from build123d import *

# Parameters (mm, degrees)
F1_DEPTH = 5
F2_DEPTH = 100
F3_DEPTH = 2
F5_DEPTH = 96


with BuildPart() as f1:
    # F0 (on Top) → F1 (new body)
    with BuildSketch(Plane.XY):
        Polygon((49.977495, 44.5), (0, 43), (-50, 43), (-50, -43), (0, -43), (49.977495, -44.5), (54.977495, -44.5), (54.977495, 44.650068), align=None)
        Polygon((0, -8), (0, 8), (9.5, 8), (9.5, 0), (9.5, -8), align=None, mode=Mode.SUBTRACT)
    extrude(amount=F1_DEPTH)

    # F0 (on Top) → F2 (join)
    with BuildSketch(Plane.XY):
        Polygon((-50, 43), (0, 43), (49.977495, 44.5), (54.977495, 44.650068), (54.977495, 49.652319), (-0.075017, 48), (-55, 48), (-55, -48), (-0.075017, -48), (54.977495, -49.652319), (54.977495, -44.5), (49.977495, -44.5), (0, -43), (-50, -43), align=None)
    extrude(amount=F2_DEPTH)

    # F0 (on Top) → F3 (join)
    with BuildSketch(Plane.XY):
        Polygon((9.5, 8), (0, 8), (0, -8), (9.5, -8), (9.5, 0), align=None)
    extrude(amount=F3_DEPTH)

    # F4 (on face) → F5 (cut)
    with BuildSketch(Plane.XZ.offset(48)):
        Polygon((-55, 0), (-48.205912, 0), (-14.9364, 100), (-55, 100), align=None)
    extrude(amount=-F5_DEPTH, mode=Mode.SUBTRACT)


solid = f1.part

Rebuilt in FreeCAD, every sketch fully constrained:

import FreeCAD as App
import Part
import Sketcher
Q = App.Units.Quantity

doc = App.newDocument("Part")
body = doc.addObject("PartDesign::Body", "Body")

# Sketch on XY plane
sketch1 = doc.addObject("Sketcher::SketchObject", "Sketch")
body.addObject(sketch1)
sketch1.AttachmentSupport = (doc.XY_Plane, [""])
sketch1.MapMode = "FlatFace"
sketch1.addGeometry(Part.LineSegment(App.Vector(50, 44, 0), App.Vector(0, 43, 0)), False)
sketch1.addGeometry(Part.LineSegment(App.Vector(0, 43, 0), App.Vector(-50, 43, 0)), False)
sketch1.addGeometry(Part.LineSegment(App.Vector(-50, 43, 0), App.Vector(-50, -43, 0)), False)
sketch1.addGeometry(Part.LineSegment(App.Vector(-50, -43, 0), App.Vector(0, -43, 0)), False)
sketch1.addGeometry(Part.LineSegment(App.Vector(0, -43, 0), App.Vector(50, -44, 0)), False)
sketch1.addGeometry(Part.LineSegment(App.Vector(50, -44, 0), App.Vector(55, -44, 0)), False)
sketch1.addGeometry(Part.LineSegment(App.Vector(55, -44, 0), App.Vector(55, 45, 0)), False)
sketch1.addGeometry(Part.LineSegment(App.Vector(55, 45, 0), App.Vector(50, 44, 0)), False)
sketch1.addGeometry(Part.LineSegment(App.Vector(10, -8, 0), App.Vector(0, -8, 0)), False)
sketch1.addGeometry(Part.LineSegment(App.Vector(0, -8, 0), App.Vector(0, 8, 0)), False)
sketch1.addGeometry(Part.LineSegment(App.Vector(0, 8, 0), App.Vector(10, 8, 0)), False)
sketch1.addGeometry(Part.LineSegment(App.Vector(10, 8, 0), App.Vector(10, -8, 0)), False)
sketch1.addConstraint(Sketcher.Constraint("Coincident", 0, 2, 1, 1))
sketch1.addConstraint(Sketcher.Constraint("Coincident", 1, 2, 2, 1))
sketch1.addConstraint(Sketcher.Constraint("Coincident", 2, 2, 3, 1))
sketch1.addConstraint(Sketcher.Constraint("Coincident", 3, 2, 4, 1))
sketch1.addConstraint(Sketcher.Constraint("Coincident", 4, 2, 5, 1))
sketch1.addConstraint(Sketcher.Constraint("Coincident", 5, 2, 6, 1))
sketch1.addConstraint(Sketcher.Constraint("Coincident", 6, 2, 7, 1))
sketch1.addConstraint(Sketcher.Constraint("Coincident", 7, 2, 0, 1))
sketch1.addConstraint(Sketcher.Constraint("Coincident", 8, 2, 9, 1))
sketch1.addConstraint(Sketcher.Constraint("Coincident", 9, 2, 10, 1))
sketch1.addConstraint(Sketcher.Constraint("Coincident", 10, 2, 11, 1))
sketch1.addConstraint(Sketcher.Constraint("Coincident", 11, 2, 8, 1))
sketch1.addConstraint(Sketcher.Constraint("Horizontal", 1))
sketch1.addConstraint(Sketcher.Constraint("Vertical", 2))
sketch1.addConstraint(Sketcher.Constraint("Horizontal", 3))
sketch1.addConstraint(Sketcher.Constraint("Horizontal", 5))
sketch1.addConstraint(Sketcher.Constraint("Vertical", 6))
sketch1.addConstraint(Sketcher.Constraint("Horizontal", 8))
sketch1.addConstraint(Sketcher.Constraint("Vertical", 9))
sketch1.addConstraint(Sketcher.Constraint("Horizontal", 10))
sketch1.addConstraint(Sketcher.Constraint("Vertical", 11))
sketch1.addConstraint(Sketcher.Constraint("Symmetric", 0, 2, 3, 2, -1, 1))
sketch1.addConstraint(Sketcher.Constraint("Symmetric", 8, 2, 9, 2, -1, 1))
sketch1.addConstraint(Sketcher.Constraint("Symmetric", 4, 2, 7, 2, -1))
sketch1.addConstraint(Sketcher.Constraint("PointOnObject", 0, 2, -2))
sketch1.addConstraint(Sketcher.Constraint("Parallel", 0, 7))
sketch1.addConstraint(Sketcher.Constraint("DistanceX", 1, 2, 1, 1, Q("50 mm")))
sketch1.addConstraint(Sketcher.Constraint("DistanceX", 5, 1, 5, 2, Q("5 mm")))
sketch1.addConstraint(Sketcher.Constraint("DistanceY", 2, 2, 2, 1, Q("86 mm")))
sketch1.addConstraint(Sketcher.Constraint("DistanceY", 9, 1, 9, 2, Q("16 mm")))
sketch1.addConstraint(Sketcher.Constraint("Distance", 0, Q("50 mm")))
sketch1.addConstraint(Sketcher.Constraint("DistanceX", 8, 2, 8, 1, Q("9.5 mm")))
sketch1.addConstraint(Sketcher.Constraint("DistanceY", 4, 2, 7, 2, Q("89 mm")))
pad1 = doc.addObject("PartDesign::Pad", "Pad")
body.addObject(pad1)
pad1.Profile = sketch1
pad1.Length = 5

# Sketch on XY plane
sketch2 = doc.addObject("Sketcher::SketchObject", "Sketch001")
body.addObject(sketch2)
sketch2.AttachmentSupport = (doc.XY_Plane, [""])
sketch2.MapMode = "FlatFace"
sketch2.addGeometry(Part.LineSegment(App.Vector(-50, 43, 0), App.Vector(0, 43, 0)), False)
sketch2.addGeometry(Part.LineSegment(App.Vector(0, 43, 0), App.Vector(50, 44, 0)), False)
sketch2.addGeometry(Part.LineSegment(App.Vector(50, 44, 0), App.Vector(55, 45, 0)), False)
sketch2.addGeometry(Part.LineSegment(App.Vector(55, 45, 0), App.Vector(55, 50, 0)), False)
sketch2.addGeometry(Part.LineSegment(App.Vector(55, 50, 0), App.Vector(0, 48, 0)), False)
sketch2.addGeometry(Part.LineSegment(App.Vector(0, 48, 0), App.Vector(-55, 48, 0)), False)
sketch2.addGeometry(Part.LineSegment(App.Vector(-55, 48, 0), App.Vector(-55, -48, 0)), False)
sketch2.addGeometry(Part.LineSegment(App.Vector(-55, -48, 0), App.Vector(0, -48, 0)), False)
sketch2.addGeometry(Part.LineSegment(App.Vector(0, -48, 0), App.Vector(55, -50, 0)), False)
sketch2.addGeometry(Part.LineSegment(App.Vector(55, -50, 0), App.Vector(55, -44, 0)), False)
sketch2.addGeometry(Part.LineSegment(App.Vector(55, -44, 0), App.Vector(50, -44, 0)), False)
sketch2.addGeometry(Part.LineSegment(App.Vector(50, -44, 0), App.Vector(0, -43, 0)), False)
sketch2.addGeometry(Part.LineSegment(App.Vector(0, -43, 0), App.Vector(-50, -43, 0)), False)
sketch2.addGeometry(Part.LineSegment(App.Vector(-50, -43, 0), App.Vector(-50, 43, 0)), False)
sketch2.addConstraint(Sketcher.Constraint("Coincident", 0, 2, 1, 1))
sketch2.addConstraint(Sketcher.Constraint("Coincident", 1, 2, 2, 1))
sketch2.addConstraint(Sketcher.Constraint("Coincident", 2, 2, 3, 1))
sketch2.addConstraint(Sketcher.Constraint("Coincident", 3, 2, 4, 1))
sketch2.addConstraint(Sketcher.Constraint("Coincident", 4, 2, 5, 1))
sketch2.addConstraint(Sketcher.Constraint("Coincident", 5, 2, 6, 1))
sketch2.addConstraint(Sketcher.Constraint("Coincident", 6, 2, 7, 1))
sketch2.addConstraint(Sketcher.Constraint("Coincident", 7, 2, 8, 1))
sketch2.addConstraint(Sketcher.Constraint("Coincident", 8, 2, 9, 1))
sketch2.addConstraint(Sketcher.Constraint("Coincident", 9, 2, 10, 1))
sketch2.addConstraint(Sketcher.Constraint("Coincident", 10, 2, 11, 1))
sketch2.addConstraint(Sketcher.Constraint("Coincident", 11, 2, 12, 1))
sketch2.addConstraint(Sketcher.Constraint("Coincident", 12, 2, 13, 1))
sketch2.addConstraint(Sketcher.Constraint("Coincident", 13, 2, 0, 1))
sketch2.addConstraint(Sketcher.Constraint("Horizontal", 0))
sketch2.addConstraint(Sketcher.Constraint("Vertical", 3))
sketch2.addConstraint(Sketcher.Constraint("Horizontal", 5))
sketch2.addConstraint(Sketcher.Constraint("Vertical", 6))
sketch2.addConstraint(Sketcher.Constraint("Horizontal", 7))
sketch2.addConstraint(Sketcher.Constraint("Vertical", 9))
sketch2.addConstraint(Sketcher.Constraint("Horizontal", 10))
sketch2.addConstraint(Sketcher.Constraint("Horizontal", 12))
sketch2.addConstraint(Sketcher.Constraint("Vertical", 13))
sketch2.addConstraint(Sketcher.Constraint("Symmetric", 0, 2, 11, 2, -1, 1))
sketch2.addConstraint(Sketcher.Constraint("Symmetric", 4, 2, 7, 2, -1))
sketch2.addConstraint(Sketcher.Constraint("Symmetric", 3, 2, 8, 2, -1))
sketch2.addConstraint(Sketcher.Constraint("Symmetric", 1, 2, 10, 2, -1))
sketch2.addConstraint(Sketcher.Constraint("PointOnObject", 0, 2, -2))
sketch2.addConstraint(Sketcher.Constraint("Parallel", 1, 2))
sketch2.addConstraint(Sketcher.Constraint("Parallel", 2, 4))
sketch2.addConstraint(Sketcher.Constraint("DistanceX", 0, 1, 0, 2, Q("50 mm")))
sketch2.addConstraint(Sketcher.Constraint("DistanceX", 10, 2, 10, 1, Q("5 mm")))
sketch2.addConstraint(Sketcher.Constraint("DistanceY", 6, 2, 6, 1, Q("96 mm")))
sketch2.addConstraint(Sketcher.Constraint("DistanceY", 13, 1, 13, 2, Q("86 mm")))
sketch2.addConstraint(Sketcher.Constraint("Distance", 1, Q("50 mm")))
sketch2.addConstraint(Sketcher.Constraint("DistanceX", 5, 2, -1, 1, Q("55 mm")))
sketch2.addConstraint(Sketcher.Constraint("DistanceY", 9, 2, 1, 2, Q("89 mm")))
sketch2.addConstraint(Sketcher.Constraint("DistanceY", 3, 1, 3, 2, Q("5.002251 mm")))
pad2 = doc.addObject("PartDesign::Pad", "Pad001")
body.addObject(pad2)
pad2.Profile = sketch2
pad2.Length = 100

# Sketch on XY plane
sketch3 = doc.addObject("Sketcher::SketchObject", "Sketch002")
body.addObject(sketch3)
sketch3.AttachmentSupport = (doc.XY_Plane, [""])
sketch3.MapMode = "FlatFace"
sketch3.addGeometry(Part.LineSegment(App.Vector(10, 8, 0), App.Vector(0, 8, 0)), False)
sketch3.addGeometry(Part.LineSegment(App.Vector(0, 8, 0), App.Vector(0, -8, 0)), False)
sketch3.addGeometry(Part.LineSegment(App.Vector(0, -8, 0), App.Vector(10, -8, 0)), False)
sketch3.addGeometry(Part.LineSegment(App.Vector(10, -8, 0), App.Vector(10, 8, 0)), False)
sketch3.addConstraint(Sketcher.Constraint("Coincident", 0, 2, 1, 1))
sketch3.addConstraint(Sketcher.Constraint("Coincident", 1, 2, 2, 1))
sketch3.addConstraint(Sketcher.Constraint("Coincident", 2, 2, 3, 1))
sketch3.addConstraint(Sketcher.Constraint("Coincident", 3, 2, 0, 1))
sketch3.addConstraint(Sketcher.Constraint("Horizontal", 0))
sketch3.addConstraint(Sketcher.Constraint("Vertical", 1))
sketch3.addConstraint(Sketcher.Constraint("Horizontal", 2))
sketch3.addConstraint(Sketcher.Constraint("Vertical", 3))
sketch3.addConstraint(Sketcher.Constraint("Symmetric", 0, 2, 1, 2, -1, 1))
sketch3.addConstraint(Sketcher.Constraint("DistanceY", 1, 2, 1, 1, Q("16 mm")))
sketch3.addConstraint(Sketcher.Constraint("DistanceX", 0, 2, 0, 1, Q("9.5 mm")))
pad3 = doc.addObject("PartDesign::Pad", "Pad002")
body.addObject(pad3)
pad3.Profile = sketch3
pad3.Length = 2

# Sketch on XZ plane
sketch4 = doc.addObject("Sketcher::SketchObject", "Sketch003")
body.addObject(sketch4)
sketch4.AttachmentSupport = (doc.XZ_Plane, [""])
sketch4.MapMode = "FlatFace"
sketch4.AttachmentOffset = App.Placement(App.Vector(0, 0, 48), App.Rotation())
sketch4.addGeometry(Part.LineSegment(App.Vector(-55, 0, 0), App.Vector(-48, 0, 0)), False)
sketch4.addGeometry(Part.LineSegment(App.Vector(-48, 0, 0), App.Vector(-15, 100, 0)), False)
sketch4.addGeometry(Part.LineSegment(App.Vector(-15, 100, 0), App.Vector(-55, 100, 0)), False)
sketch4.addGeometry(Part.LineSegment(App.Vector(-55, 100, 0), App.Vector(-55, 0, 0)), False)
sketch4.addConstraint(Sketcher.Constraint("Coincident", 0, 2, 1, 1))
sketch4.addConstraint(Sketcher.Constraint("Coincident", 1, 2, 2, 1))
sketch4.addConstraint(Sketcher.Constraint("Coincident", 2, 2, 3, 1))
sketch4.addConstraint(Sketcher.Constraint("Coincident", 3, 2, 0, 1))
sketch4.addConstraint(Sketcher.Constraint("Horizontal", 0))
sketch4.addConstraint(Sketcher.Constraint("Horizontal", 2))
sketch4.addConstraint(Sketcher.Constraint("Vertical", 3))
sketch4.addConstraint(Sketcher.Constraint("PointOnObject", 0, 2, -1))
sketch4.addConstraint(Sketcher.Constraint("DistanceY", 3, 2, 3, 1, Q("100 mm")))
sketch4.addConstraint(Sketcher.Constraint("DistanceX", 2, 2, -1, 1, Q("55 mm")))
sketch4.addConstraint(Sketcher.Constraint("DistanceX", 2, 2, 2, 1, Q("40.0636 mm")))
sketch4.addConstraint(Sketcher.Constraint("DistanceX", 0, 1, 0, 2, Q("6.794088 mm")))
pocket1 = doc.addObject("PartDesign::Pocket", "Pocket")
body.addObject(pocket1)
pocket1.Profile = sketch4
pocket1.Length = 96

doc.recompute()
